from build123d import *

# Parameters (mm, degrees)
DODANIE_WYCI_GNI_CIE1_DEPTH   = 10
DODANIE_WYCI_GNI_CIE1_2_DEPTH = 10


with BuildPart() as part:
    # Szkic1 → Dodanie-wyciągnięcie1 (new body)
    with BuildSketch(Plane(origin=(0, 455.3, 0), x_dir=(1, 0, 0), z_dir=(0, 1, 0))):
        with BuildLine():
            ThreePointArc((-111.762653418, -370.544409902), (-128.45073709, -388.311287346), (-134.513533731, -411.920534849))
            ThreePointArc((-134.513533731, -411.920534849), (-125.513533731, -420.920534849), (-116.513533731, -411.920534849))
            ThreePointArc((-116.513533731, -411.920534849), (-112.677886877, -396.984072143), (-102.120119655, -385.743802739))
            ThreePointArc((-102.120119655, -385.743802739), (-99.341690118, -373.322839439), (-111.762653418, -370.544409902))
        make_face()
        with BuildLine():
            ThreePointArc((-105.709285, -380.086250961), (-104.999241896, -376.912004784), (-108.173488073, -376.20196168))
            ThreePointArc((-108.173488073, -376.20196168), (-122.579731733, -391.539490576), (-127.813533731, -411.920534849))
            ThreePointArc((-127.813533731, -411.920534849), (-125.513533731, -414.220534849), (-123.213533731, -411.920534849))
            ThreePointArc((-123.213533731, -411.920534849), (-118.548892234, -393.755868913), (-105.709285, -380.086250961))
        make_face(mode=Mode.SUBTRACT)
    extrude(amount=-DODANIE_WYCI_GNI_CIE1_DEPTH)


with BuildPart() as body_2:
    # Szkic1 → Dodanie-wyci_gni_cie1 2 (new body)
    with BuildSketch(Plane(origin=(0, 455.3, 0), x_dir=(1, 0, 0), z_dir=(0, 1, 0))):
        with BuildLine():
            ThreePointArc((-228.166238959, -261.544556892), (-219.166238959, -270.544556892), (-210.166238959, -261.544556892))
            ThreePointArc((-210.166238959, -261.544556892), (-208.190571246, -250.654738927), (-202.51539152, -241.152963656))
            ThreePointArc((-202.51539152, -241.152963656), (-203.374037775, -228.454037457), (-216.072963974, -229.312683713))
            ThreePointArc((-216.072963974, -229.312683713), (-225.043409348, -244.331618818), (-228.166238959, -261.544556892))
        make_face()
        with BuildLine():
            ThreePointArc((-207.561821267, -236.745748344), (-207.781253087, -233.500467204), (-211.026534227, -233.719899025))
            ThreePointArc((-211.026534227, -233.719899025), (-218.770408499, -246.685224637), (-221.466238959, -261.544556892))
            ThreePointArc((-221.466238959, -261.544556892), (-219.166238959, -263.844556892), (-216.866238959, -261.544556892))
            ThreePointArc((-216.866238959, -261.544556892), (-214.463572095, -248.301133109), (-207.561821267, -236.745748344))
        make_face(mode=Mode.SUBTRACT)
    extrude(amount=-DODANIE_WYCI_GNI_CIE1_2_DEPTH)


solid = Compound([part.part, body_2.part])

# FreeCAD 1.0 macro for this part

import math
import FreeCAD as App
import Part
import Sketcher
from FreeCAD import Vector

doc = App.newDocument("Part")
body = doc.addObject("PartDesign::Body", "Body")

# Sketch on XZ plane
sketch1 = body.newObject("Sketcher::SketchObject", "Sketch")
sketch1.AttachmentSupport = (doc.getObject("XZ_Plane"), [""])
sketch1.MapMode = "FlatFace"
sketch1.AttachmentOffset = App.Placement(Vector(0, 0, -455.3), App.Rotation())
sketch1.addGeometry(Part.ArcOfCircle(Part.Circle(Vector(-85.5, 411.9, 0), Vector(0, 0, 1), 49), math.radians(-180), math.radians(-122)), False)
sketch1.addGeometry(Part.ArcOfCircle(Part.Circle(Vector(-125.5, 411.9, 0), Vector(0, 0, 1), 9), math.radians(0), math.radians(180)), False)
sketch1.addGeometry(Part.ArcOfCircle(Part.Circle(Vector(-85.5, 411.9, 0), Vector(0, 0, 1), 31), math.radians(180), math.radians(238)), False)
sketch1.addGeometry(Part.ArcOfCircle(Part.Circle(Vector(-106.9, 378.1, 0), Vector(0, 0, 1), 9), math.radians(-122), math.radians(58)), False)
sketch1.addGeometry(Part.ArcOfCircle(Part.Circle(Vector(-106.9, 378.1, 0), Vector(0, 0, 1), 2.3), math.radians(-122), math.radians(58)), False)
sketch1.addGeometry(Part.ArcOfCircle(Part.Circle(Vector(-85.5, 411.9, 0), Vector(0, 0, 1), 37.7), math.radians(180), math.radians(238)), False)
sketch1.addGeometry(Part.ArcOfCircle(Part.Circle(Vector(-125.5, 411.9, 0), Vector(0, 0, 1), 2.3), math.radians(0), math.radians(180)), False)
sketch1.addGeometry(Part.ArcOfCircle(Part.Circle(Vector(-85.5, 411.9, 0), Vector(0, 0, 1), 42.3), math.radians(-180), math.radians(-122)), False)
sketch1.addConstraint(Sketcher.Constraint("Tangent", 0, 1, 1, 2))
sketch1.addConstraint(Sketcher.Constraint("Tangent", 1, 1, 2, 1))
sketch1.addConstraint(Sketcher.Constraint("Tangent", 2, 2, 3, 2))
sketch1.addConstraint(Sketcher.Constraint("Tangent", 3, 1, 0, 2))
sketch1.addConstraint(Sketcher.Constraint("Tangent", 4, 2, 5, 2))
sketch1.addConstraint(Sketcher.Constraint("Tangent", 5, 1, 6, 1))
sketch1.addConstraint(Sketcher.Constraint("Tangent", 6, 2, 7, 1))
sketch1.addConstraint(Sketcher.Constraint("Tangent", 7, 2, 4, 1))
sketch1.addConstraint(Sketcher.Constraint("Coincident", 2, 3, 0, 3))
sketch1.addConstraint(Sketcher.Constraint("Coincident", 4, 3, 3, 3))
sketch1.addConstraint(Sketcher.Constraint("Coincident", 5, 3, 0, 3))
sketch1.addConstraint(Sketcher.Constraint("Coincident", 6, 3, 1, 3))
sketch1.addConstraint(Sketcher.Constraint("Horizontal", 0, 3, 1, 3))
sketch1.addConstraint(Sketcher.Constraint("Horizontal", 6, 3, 7, 3))
sketch1.addConstraint(Sketcher.Constraint("Radius", 0, 49.0))
sketch1.addConstraint(Sketcher.Constraint("Radius", 1, 9.0))
sketch1.addConstraint(Sketcher.Constraint("Radius", 4, 2.3))
sketch1.addConstraint(Sketcher.Constraint("DistanceX", 4, 3, 4, 2, 1.232102))
sketch1.addConstraint(Sketcher.Constraint("DistanceX", 2, 2, -1, 1, 102.12012))
sketch1.addConstraint(Sketcher.Constraint("DistanceY", -1, 1, 3, 1, 370.54441))
pad1 = body.newObject("PartDesign::Pad", "Pad")
pad1.Profile = sketch1
pad1.Length = 10
body2 = doc.addObject("PartDesign::Body", "Body001")

# Sketch on XZ plane
sketch2 = body2.newObject("Sketcher::SketchObject", "Sketch001")
sketch2.AttachmentSupport = (doc.getObject("XZ_Plane001"), [""])
sketch2.MapMode = "FlatFace"
sketch2.AttachmentOffset = App.Placement(Vector(0, 0, -455.3), App.Rotation())
sketch2.addGeometry(Part.ArcOfCircle(Part.Circle(Vector(-219.2, 261.5, 0), Vector(0, 0, 1), 9), math.radians(0), math.radians(180)), False)
sketch2.addGeometry(Part.ArcOfCircle(Part.Circle(Vector(-179.2, 261.5, 0), Vector(0, 0, 1), 31), math.radians(180), math.radians(221)), False)
sketch2.addGeometry(Part.ArcOfCircle(Part.Circle(Vector(-209.3, 235.2, 0), Vector(0, 0, 1), 9), math.radians(-139), math.radians(41)), False)
sketch2.addGeometry(Part.ArcOfCircle(Part.Circle(Vector(-179.2, 261.5, 0), Vector(0, 0, 1), 49), math.radians(180), math.radians(221)), False)
sketch2.addGeometry(Part.ArcOfCircle(Part.Circle(Vector(-209.3, 235.2, 0), Vector(0, 0, 1), 2.3), math.radians(-139), math.radians(41)), False)
sketch2.addGeometry(Part.ArcOfCircle(Part.Circle(Vector(-179.2, 261.5, 0), Vector(0, 0, 1), 37.7), math.radians(180), math.radians(221)), False)
sketch2.addGeometry(Part.ArcOfCircle(Part.Circle(Vector(-219.2, 261.5, 0), Vector(0, 0, 1), 2.3), math.radians(0), math.radians(180)), False)
sketch2.addGeometry(Part.ArcOfCircle(Part.Circle(Vector(-179.2, 261.5, 0), Vector(0, 0, 1), 42.3), math.radians(180), math.radians(221)), False)
sketch2.addConstraint(Sketcher.Constraint("Tangent", 0, 1, 1, 1))
sketch2.addConstraint(Sketcher.Constraint("Tangent", 1, 2, 2, 2))
sketch2.addConstraint(Sketcher.Constraint("Tangent", 2, 1, 3, 2))
sketch2.addConstraint(Sketcher.Constraint("Tangent", 3, 1, 0, 2))
sketch2.addConstraint(Sketcher.Constraint("Tangent", 4, 2, 5, 2))
sketch2.addConstraint(Sketcher.Constraint("Tangent", 5, 1, 6, 1))
sketch2.addConstraint(Sketcher.Constraint("Tangent", 6, 2, 7, 1))
sketch2.addConstraint(Sketcher.Constraint("Tangent", 7, 2, 4, 1))
sketch2.addConstraint(Sketcher.Constraint("Coincident", 3, 3, 1, 3))
sketch2.addConstraint(Sketcher.Constraint("Coincident", 4, 3, 2, 3))
sketch2.addConstraint(Sketcher.Constraint("Coincident", 5, 3, 1, 3))
sketch2.addConstraint(Sketcher.Constraint("Coincident", 6, 3, 0, 3))
sketch2.addConstraint(Sketcher.Constraint("Horizontal", 0, 3, 1, 3))
sketch2.addConstraint(Sketcher.Constraint("Horizontal", 6, 3, 7, 3))
sketch2.addConstraint(Sketcher.Constraint("Radius", 0, 9.0))
sketch2.addConstraint(Sketcher.Constraint("Radius", 1, 31.0))
sketch2.addConstraint(Sketcher.Constraint("Radius", 4, 2.3))
sketch2.addConstraint(Sketcher.Constraint("DistanceY", -1, 1, 7, 2, 233.719899))
sketch2.addConstraint(Sketcher.Constraint("DistanceX", 0, 3, -1, 1, 219.166239))
sketch2.addConstraint(Sketcher.Constraint("DistanceX", 1, 2, -1, 1, 202.515392))
pad2 = body2.newObject("PartDesign::Pad", "Pad001")
pad2.Profile = sketch2
pad2.Length = 10

doc.recompute()
